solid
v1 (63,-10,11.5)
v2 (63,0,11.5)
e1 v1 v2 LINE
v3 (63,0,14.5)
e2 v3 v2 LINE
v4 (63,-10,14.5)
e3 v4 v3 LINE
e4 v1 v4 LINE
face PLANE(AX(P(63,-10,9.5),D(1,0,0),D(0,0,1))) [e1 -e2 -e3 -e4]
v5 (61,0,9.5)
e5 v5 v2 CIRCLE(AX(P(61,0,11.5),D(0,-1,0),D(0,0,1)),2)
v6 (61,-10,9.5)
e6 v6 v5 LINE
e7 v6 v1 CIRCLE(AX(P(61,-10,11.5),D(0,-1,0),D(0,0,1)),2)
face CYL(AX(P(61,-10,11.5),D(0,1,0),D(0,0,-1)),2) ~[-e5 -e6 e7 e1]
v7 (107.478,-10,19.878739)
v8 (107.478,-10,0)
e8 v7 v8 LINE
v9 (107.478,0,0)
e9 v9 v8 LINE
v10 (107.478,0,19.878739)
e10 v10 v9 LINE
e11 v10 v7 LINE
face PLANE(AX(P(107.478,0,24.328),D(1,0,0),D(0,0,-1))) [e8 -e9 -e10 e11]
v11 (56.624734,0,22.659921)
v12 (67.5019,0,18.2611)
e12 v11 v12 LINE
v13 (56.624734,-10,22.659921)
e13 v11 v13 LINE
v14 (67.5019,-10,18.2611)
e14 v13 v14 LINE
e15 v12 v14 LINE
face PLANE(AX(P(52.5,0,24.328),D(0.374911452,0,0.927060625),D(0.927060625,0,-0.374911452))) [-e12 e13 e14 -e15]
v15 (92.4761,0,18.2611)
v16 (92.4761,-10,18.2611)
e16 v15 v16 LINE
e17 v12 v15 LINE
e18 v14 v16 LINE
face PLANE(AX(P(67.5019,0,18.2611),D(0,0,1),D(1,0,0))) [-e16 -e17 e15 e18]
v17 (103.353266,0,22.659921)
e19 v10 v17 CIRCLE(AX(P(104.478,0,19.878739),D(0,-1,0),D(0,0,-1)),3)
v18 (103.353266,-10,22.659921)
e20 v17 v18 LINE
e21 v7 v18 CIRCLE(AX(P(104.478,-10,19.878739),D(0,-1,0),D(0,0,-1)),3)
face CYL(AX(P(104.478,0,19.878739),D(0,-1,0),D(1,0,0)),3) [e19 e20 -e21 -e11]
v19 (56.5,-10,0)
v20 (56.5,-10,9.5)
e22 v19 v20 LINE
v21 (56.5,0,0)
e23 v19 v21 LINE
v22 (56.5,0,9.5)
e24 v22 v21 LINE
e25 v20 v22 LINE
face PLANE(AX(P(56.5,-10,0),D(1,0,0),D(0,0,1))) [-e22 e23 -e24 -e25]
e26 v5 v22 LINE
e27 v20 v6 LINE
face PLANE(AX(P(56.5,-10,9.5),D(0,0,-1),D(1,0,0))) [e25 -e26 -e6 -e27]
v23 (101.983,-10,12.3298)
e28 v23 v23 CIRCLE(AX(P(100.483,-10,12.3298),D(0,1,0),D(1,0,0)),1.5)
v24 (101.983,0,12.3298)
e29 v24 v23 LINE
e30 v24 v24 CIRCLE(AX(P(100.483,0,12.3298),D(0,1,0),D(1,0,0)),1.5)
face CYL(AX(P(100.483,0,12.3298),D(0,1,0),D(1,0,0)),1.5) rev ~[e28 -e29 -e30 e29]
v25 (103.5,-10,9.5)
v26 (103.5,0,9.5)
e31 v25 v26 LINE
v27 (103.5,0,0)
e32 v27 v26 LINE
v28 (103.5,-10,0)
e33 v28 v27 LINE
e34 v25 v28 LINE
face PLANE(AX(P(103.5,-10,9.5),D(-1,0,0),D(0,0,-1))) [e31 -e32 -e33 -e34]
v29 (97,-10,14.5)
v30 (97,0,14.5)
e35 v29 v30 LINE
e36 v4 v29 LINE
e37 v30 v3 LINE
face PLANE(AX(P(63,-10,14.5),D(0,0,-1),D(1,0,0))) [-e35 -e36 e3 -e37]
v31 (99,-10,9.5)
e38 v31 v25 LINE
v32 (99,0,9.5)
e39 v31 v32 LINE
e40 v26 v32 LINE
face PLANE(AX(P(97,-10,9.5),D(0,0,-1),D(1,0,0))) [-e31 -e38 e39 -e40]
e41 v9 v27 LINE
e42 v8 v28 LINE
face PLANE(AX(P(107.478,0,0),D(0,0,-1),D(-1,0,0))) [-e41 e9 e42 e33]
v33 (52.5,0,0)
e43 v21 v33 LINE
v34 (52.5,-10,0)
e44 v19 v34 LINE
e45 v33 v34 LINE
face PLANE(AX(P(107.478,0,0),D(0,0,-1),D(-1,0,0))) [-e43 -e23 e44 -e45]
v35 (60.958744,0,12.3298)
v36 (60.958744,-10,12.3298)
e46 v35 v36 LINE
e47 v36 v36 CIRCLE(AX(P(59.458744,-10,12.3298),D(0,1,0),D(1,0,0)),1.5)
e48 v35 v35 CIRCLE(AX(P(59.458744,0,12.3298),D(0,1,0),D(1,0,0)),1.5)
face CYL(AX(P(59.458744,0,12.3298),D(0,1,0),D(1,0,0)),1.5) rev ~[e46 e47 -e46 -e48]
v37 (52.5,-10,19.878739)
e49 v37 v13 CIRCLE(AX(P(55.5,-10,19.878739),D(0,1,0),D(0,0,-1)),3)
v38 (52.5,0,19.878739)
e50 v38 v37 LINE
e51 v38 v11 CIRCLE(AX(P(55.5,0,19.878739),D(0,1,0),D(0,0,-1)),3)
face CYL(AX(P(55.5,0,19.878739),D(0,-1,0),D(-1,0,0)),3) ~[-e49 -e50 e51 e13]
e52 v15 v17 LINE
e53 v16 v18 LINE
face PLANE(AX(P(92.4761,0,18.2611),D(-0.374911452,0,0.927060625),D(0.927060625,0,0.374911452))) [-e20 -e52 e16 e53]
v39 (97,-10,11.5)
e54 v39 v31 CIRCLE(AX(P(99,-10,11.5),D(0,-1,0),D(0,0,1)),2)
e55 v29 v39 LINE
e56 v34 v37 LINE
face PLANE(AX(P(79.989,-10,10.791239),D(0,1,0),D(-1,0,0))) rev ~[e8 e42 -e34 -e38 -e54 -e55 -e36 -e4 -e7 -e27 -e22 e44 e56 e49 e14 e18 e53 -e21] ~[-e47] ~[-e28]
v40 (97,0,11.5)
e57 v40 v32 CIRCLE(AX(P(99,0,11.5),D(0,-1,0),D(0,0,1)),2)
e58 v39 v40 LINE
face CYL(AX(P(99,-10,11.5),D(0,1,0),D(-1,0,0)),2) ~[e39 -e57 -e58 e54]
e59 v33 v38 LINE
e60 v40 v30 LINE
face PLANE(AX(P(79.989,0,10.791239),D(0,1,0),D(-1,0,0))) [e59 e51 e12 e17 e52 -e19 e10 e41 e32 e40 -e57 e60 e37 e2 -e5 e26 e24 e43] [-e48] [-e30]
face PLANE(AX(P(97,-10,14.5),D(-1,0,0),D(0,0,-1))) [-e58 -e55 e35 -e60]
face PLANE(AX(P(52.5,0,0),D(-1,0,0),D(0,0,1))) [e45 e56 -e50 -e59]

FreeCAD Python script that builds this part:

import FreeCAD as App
import Part
import Sketcher

V = App.Vector
Q = App.Units.Quantity


def edges_at(feature, points):
    """Names of the edges that pass closest to the given points."""
    edges = feature.Shape.Edges
    near = lambda p: min(range(len(edges)), key=lambda i: edges[i].distToShape(Part.Vertex(*p))[0])
    return sorted({f"Edge{near(p) + 1}" for p in points})

doc = App.newDocument("Part")
body = doc.addObject("PartDesign::Body", "Body")

# Sketch on XZ plane
sketch1 = body.newObject("Sketcher::SketchObject", "Sketch")
sketch1.AttachmentSupport = (doc.getObject("XZ_Plane"), [""])
sketch1.MapMode = "FlatFace"
sketch1.addGeometry(Part.LineSegment(V(52, 24, 0), V(52, 0, 0)), False)
sketch1.addGeometry(Part.LineSegment(V(52, 0, 0), V(107, 0, 0)), False)
sketch1.addGeometry(Part.LineSegment(V(107, 0, 0), V(107, 24, 0)), False)
sketch1.addGeometry(Part.LineSegment(V(107, 24, 0), V(92, 18, 0)), False)
sketch1.addGeometry(Part.LineSegment(V(92, 18, 0), V(68, 18, 0)), False)
sketch1.addGeometry(Part.LineSegment(V(68, 18, 0), V(52, 24, 0)), False)
sketch1.addConstraint(Sketcher.Constraint("Coincident", 0, 2, 1, 1))
sketch1.addConstraint(Sketcher.Constraint("Coincident", 1, 2, 2, 1))
sketch1.addConstraint(Sketcher.Constraint("Coincident", 2, 2, 3, 1))
sketch1.addConstraint(Sketcher.Constraint("Coincident", 3, 2, 4, 1))
sketch1.addConstraint(Sketcher.Constraint("Coincident", 4, 2, 5, 1))
sketch1.addConstraint(Sketcher.Constraint("Coincident", 5, 2, 0, 1))
sketch1.addConstraint(Sketcher.Constraint("Vertical", 0))
sketch1.addConstraint(Sketcher.Constraint("Horizontal", 1))
sketch1.addConstraint(Sketcher.Constraint("Vertical", 2))
sketch1.addConstraint(Sketcher.Constraint("Horizontal", 4))
sketch1.addConstraint(Sketcher.Constraint("PointOnObject", 0, 2, -1))
sketch1.addConstraint(Sketcher.Constraint("Horizontal", 2, 2, 5, 2))
sketch1.addConstraint(Sketcher.Constraint("Equal", 3, 5))
sketch1.addConstraint(Sketcher.Constraint("DistanceX", -1, 1, 0, 2, Q("52.5 mm")))
sketch1.addConstraint(Sketcher.Constraint("DistanceX", 1, 1, 1, 2, Q("54.978 mm")))
sketch1.addConstraint(Sketcher.Constraint("DistanceY", 0, 2, 0, 1, Q("24.328 mm")))
sketch1.addConstraint(Sketcher.Constraint("DistanceX", 4, 2, 4, 1, Q("24.9742 mm")))
sketch1.addConstraint(Sketcher.Constraint("DistanceY", -1, 1, 3, 2, Q("18.2611 mm")))
pad1 = body.newObject("PartDesign::Pad", "Pad")
pad1.Profile = sketch1
pad1.Length = 10

# Sketch on XZ plane
sketch2 = body.newObject("Sketcher::SketchObject", "Sketch001")
sketch2.AttachmentSupport = (doc.getObject("XZ_Plane"), [""])
sketch2.MapMode = "FlatFace"
sketch2.addGeometry(Part.Circle(V(100.5, 12.3, 0), V(0, 0, 1), 1.5), False)
sketch2.addGeometry(Part.Circle(V(59.5, 12.3, 0), V(0, 0, 1), 1.5), False)
sketch2.addConstraint(Sketcher.Constraint("Equal", 0, 1))
sketch2.addConstraint(Sketcher.Constraint("Horizontal", 0, 3, 1, 3))
sketch2.addConstraint(Sketcher.Constraint("Diameter", 0, Q("3 mm")))
sketch2.addConstraint(Sketcher.Constraint("DistanceX", -1, 1, 0, 3, Q("100.483 mm")))
sketch2.addConstraint(Sketcher.Constraint("DistanceY", -1, 1, 0, 3, Q("12.3298 mm")))
sketch2.addConstraint(Sketcher.Constraint("DistanceX", -1, 1, 1, 3, Q("59.458744 mm")))
pocket1 = body.newObject("PartDesign::Pocket", "Pocket")
pocket1.Profile = sketch2
pocket1.Type = "ThroughAll"
pocket1.Reversed = True
doc.recompute()

fillet = body.newObject("PartDesign::Fillet", "Fillet")
fillet.Base = (pocket1, edges_at(pocket1, [(52.5, -5, 24.328), (107.478, -5, 24.328)]))
fillet.Radius = 3

# Sketch on XZ plane
sketch3 = body.newObject("Sketcher::SketchObject", "Sketch002")
sketch3.AttachmentSupport = (doc.getObject("XZ_Plane"), [""])
sketch3.MapMode = "FlatFace"
sketch3.AttachmentOffset = App.Placement(V(0, 0, 10), App.Rotation())
sketch3.addGeometry(Part.LineSegment(V(56, 10, 0), V(56, 0, 0)), False)
sketch3.addGeometry(Part.LineSegment(V(56, 0, 0), V(104, 0, 0)), False)
sketch3.addGeometry(Part.LineSegment(V(104, 0, 0), V(104, 10, 0)), False)
sketch3.addGeometry(Part.LineSegment(V(104, 10, 0), V(97, 10, 0)), False)
sketch3.addGeometry(Part.LineSegment(V(97, 10, 0), V(97, 14, 0)), False)
sketch3.addGeometry(Part.LineSegment(V(97, 14, 0), V(63, 14, 0)), False)
sketch3.addGeometry(Part.LineSegment(V(63, 14, 0), V(63, 10, 0)), False)
sketch3.addGeometry(Part.LineSegment(V(63, 10, 0), V(56, 10, 0)), False)
sketch3.addConstraint(Sketcher.Constraint("Coincident", 0, 2, 1, 1))
sketch3.addConstraint(Sketcher.Constraint("Coincident", 1, 2, 2, 1))
sketch3.addConstraint(Sketcher.Constraint("Coincident", 2, 2, 3, 1))
sketch3.addConstraint(Sketcher.Constraint("Coincident", 3, 2, 4, 1))
sketch3.addConstraint(Sketcher.Constraint("Coincident", 4, 2, 5, 1))
sketch3.addConstraint(Sketcher.Constraint("Coincident", 5, 2, 6, 1))
sketch3.addConstraint(Sketcher.Constraint("Coincident", 6, 2, 7, 1))
sketch3.addConstraint(Sketcher.Constraint("Coincident", 7, 2, 0, 1))
sketch3.addConstraint(Sketcher.Constraint("Vertical", 0))
sketch3.addConstraint(Sketcher.Constraint("Horizontal", 1))
sketch3.addConstraint(Sketcher.Constraint("Vertical", 2))
sketch3.addConstraint(Sketcher.Constraint("Horizontal", 3))
sketch3.addConstraint(Sketcher.Constraint("Vertical", 4))
sketch3.addConstraint(Sketcher.Constraint("Horizontal", 5))
sketch3.addConstraint(Sketcher.Constraint("Vertical", 6))
sketch3.addConstraint(Sketcher.Constraint("Horizontal", 7))
sketch3.addConstraint(Sketcher.Constraint("PointOnObject", 0, 2, -1))
sketch3.addConstraint(Sketcher.Constraint("Horizontal", 3, 2, 6, 2))
sketch3.addConstraint(Sketcher.Constraint("Equal", 3, 7))
sketch3.addConstraint(Sketcher.Constraint("DistanceX", 1, 1, 1, 2, Q("47 mm")))
sketch3.addConstraint(Sketcher.Constraint("DistanceX", 5, 2, 5, 1, Q("34 mm")))
sketch3.addConstraint(Sketcher.Constraint("DistanceY", 4, 1, 4, 2, Q("5 mm")))
sketch3.addConstraint(Sketcher.Constraint("DistanceY", 0, 2, 0, 1, Q("9.5 mm")))
sketch3.addConstraint(Sketcher.Constraint("DistanceX", -1, 1, 3, 2, Q("97 mm")))
pocket2 = body.newObject("PartDesign::Pocket", "Pocket001")
pocket2.Profile = sketch3
pocket2.Type = "ThroughAll"
doc.recompute()

fillet2 = body.newObject("PartDesign::Fillet", "Fillet001")
fillet2.Base = (pocket2, edges_at(pocket2, [(63, -5, 9.5), (97, -5, 9.5)]))
fillet2.Radius = 2

doc.recompute()
